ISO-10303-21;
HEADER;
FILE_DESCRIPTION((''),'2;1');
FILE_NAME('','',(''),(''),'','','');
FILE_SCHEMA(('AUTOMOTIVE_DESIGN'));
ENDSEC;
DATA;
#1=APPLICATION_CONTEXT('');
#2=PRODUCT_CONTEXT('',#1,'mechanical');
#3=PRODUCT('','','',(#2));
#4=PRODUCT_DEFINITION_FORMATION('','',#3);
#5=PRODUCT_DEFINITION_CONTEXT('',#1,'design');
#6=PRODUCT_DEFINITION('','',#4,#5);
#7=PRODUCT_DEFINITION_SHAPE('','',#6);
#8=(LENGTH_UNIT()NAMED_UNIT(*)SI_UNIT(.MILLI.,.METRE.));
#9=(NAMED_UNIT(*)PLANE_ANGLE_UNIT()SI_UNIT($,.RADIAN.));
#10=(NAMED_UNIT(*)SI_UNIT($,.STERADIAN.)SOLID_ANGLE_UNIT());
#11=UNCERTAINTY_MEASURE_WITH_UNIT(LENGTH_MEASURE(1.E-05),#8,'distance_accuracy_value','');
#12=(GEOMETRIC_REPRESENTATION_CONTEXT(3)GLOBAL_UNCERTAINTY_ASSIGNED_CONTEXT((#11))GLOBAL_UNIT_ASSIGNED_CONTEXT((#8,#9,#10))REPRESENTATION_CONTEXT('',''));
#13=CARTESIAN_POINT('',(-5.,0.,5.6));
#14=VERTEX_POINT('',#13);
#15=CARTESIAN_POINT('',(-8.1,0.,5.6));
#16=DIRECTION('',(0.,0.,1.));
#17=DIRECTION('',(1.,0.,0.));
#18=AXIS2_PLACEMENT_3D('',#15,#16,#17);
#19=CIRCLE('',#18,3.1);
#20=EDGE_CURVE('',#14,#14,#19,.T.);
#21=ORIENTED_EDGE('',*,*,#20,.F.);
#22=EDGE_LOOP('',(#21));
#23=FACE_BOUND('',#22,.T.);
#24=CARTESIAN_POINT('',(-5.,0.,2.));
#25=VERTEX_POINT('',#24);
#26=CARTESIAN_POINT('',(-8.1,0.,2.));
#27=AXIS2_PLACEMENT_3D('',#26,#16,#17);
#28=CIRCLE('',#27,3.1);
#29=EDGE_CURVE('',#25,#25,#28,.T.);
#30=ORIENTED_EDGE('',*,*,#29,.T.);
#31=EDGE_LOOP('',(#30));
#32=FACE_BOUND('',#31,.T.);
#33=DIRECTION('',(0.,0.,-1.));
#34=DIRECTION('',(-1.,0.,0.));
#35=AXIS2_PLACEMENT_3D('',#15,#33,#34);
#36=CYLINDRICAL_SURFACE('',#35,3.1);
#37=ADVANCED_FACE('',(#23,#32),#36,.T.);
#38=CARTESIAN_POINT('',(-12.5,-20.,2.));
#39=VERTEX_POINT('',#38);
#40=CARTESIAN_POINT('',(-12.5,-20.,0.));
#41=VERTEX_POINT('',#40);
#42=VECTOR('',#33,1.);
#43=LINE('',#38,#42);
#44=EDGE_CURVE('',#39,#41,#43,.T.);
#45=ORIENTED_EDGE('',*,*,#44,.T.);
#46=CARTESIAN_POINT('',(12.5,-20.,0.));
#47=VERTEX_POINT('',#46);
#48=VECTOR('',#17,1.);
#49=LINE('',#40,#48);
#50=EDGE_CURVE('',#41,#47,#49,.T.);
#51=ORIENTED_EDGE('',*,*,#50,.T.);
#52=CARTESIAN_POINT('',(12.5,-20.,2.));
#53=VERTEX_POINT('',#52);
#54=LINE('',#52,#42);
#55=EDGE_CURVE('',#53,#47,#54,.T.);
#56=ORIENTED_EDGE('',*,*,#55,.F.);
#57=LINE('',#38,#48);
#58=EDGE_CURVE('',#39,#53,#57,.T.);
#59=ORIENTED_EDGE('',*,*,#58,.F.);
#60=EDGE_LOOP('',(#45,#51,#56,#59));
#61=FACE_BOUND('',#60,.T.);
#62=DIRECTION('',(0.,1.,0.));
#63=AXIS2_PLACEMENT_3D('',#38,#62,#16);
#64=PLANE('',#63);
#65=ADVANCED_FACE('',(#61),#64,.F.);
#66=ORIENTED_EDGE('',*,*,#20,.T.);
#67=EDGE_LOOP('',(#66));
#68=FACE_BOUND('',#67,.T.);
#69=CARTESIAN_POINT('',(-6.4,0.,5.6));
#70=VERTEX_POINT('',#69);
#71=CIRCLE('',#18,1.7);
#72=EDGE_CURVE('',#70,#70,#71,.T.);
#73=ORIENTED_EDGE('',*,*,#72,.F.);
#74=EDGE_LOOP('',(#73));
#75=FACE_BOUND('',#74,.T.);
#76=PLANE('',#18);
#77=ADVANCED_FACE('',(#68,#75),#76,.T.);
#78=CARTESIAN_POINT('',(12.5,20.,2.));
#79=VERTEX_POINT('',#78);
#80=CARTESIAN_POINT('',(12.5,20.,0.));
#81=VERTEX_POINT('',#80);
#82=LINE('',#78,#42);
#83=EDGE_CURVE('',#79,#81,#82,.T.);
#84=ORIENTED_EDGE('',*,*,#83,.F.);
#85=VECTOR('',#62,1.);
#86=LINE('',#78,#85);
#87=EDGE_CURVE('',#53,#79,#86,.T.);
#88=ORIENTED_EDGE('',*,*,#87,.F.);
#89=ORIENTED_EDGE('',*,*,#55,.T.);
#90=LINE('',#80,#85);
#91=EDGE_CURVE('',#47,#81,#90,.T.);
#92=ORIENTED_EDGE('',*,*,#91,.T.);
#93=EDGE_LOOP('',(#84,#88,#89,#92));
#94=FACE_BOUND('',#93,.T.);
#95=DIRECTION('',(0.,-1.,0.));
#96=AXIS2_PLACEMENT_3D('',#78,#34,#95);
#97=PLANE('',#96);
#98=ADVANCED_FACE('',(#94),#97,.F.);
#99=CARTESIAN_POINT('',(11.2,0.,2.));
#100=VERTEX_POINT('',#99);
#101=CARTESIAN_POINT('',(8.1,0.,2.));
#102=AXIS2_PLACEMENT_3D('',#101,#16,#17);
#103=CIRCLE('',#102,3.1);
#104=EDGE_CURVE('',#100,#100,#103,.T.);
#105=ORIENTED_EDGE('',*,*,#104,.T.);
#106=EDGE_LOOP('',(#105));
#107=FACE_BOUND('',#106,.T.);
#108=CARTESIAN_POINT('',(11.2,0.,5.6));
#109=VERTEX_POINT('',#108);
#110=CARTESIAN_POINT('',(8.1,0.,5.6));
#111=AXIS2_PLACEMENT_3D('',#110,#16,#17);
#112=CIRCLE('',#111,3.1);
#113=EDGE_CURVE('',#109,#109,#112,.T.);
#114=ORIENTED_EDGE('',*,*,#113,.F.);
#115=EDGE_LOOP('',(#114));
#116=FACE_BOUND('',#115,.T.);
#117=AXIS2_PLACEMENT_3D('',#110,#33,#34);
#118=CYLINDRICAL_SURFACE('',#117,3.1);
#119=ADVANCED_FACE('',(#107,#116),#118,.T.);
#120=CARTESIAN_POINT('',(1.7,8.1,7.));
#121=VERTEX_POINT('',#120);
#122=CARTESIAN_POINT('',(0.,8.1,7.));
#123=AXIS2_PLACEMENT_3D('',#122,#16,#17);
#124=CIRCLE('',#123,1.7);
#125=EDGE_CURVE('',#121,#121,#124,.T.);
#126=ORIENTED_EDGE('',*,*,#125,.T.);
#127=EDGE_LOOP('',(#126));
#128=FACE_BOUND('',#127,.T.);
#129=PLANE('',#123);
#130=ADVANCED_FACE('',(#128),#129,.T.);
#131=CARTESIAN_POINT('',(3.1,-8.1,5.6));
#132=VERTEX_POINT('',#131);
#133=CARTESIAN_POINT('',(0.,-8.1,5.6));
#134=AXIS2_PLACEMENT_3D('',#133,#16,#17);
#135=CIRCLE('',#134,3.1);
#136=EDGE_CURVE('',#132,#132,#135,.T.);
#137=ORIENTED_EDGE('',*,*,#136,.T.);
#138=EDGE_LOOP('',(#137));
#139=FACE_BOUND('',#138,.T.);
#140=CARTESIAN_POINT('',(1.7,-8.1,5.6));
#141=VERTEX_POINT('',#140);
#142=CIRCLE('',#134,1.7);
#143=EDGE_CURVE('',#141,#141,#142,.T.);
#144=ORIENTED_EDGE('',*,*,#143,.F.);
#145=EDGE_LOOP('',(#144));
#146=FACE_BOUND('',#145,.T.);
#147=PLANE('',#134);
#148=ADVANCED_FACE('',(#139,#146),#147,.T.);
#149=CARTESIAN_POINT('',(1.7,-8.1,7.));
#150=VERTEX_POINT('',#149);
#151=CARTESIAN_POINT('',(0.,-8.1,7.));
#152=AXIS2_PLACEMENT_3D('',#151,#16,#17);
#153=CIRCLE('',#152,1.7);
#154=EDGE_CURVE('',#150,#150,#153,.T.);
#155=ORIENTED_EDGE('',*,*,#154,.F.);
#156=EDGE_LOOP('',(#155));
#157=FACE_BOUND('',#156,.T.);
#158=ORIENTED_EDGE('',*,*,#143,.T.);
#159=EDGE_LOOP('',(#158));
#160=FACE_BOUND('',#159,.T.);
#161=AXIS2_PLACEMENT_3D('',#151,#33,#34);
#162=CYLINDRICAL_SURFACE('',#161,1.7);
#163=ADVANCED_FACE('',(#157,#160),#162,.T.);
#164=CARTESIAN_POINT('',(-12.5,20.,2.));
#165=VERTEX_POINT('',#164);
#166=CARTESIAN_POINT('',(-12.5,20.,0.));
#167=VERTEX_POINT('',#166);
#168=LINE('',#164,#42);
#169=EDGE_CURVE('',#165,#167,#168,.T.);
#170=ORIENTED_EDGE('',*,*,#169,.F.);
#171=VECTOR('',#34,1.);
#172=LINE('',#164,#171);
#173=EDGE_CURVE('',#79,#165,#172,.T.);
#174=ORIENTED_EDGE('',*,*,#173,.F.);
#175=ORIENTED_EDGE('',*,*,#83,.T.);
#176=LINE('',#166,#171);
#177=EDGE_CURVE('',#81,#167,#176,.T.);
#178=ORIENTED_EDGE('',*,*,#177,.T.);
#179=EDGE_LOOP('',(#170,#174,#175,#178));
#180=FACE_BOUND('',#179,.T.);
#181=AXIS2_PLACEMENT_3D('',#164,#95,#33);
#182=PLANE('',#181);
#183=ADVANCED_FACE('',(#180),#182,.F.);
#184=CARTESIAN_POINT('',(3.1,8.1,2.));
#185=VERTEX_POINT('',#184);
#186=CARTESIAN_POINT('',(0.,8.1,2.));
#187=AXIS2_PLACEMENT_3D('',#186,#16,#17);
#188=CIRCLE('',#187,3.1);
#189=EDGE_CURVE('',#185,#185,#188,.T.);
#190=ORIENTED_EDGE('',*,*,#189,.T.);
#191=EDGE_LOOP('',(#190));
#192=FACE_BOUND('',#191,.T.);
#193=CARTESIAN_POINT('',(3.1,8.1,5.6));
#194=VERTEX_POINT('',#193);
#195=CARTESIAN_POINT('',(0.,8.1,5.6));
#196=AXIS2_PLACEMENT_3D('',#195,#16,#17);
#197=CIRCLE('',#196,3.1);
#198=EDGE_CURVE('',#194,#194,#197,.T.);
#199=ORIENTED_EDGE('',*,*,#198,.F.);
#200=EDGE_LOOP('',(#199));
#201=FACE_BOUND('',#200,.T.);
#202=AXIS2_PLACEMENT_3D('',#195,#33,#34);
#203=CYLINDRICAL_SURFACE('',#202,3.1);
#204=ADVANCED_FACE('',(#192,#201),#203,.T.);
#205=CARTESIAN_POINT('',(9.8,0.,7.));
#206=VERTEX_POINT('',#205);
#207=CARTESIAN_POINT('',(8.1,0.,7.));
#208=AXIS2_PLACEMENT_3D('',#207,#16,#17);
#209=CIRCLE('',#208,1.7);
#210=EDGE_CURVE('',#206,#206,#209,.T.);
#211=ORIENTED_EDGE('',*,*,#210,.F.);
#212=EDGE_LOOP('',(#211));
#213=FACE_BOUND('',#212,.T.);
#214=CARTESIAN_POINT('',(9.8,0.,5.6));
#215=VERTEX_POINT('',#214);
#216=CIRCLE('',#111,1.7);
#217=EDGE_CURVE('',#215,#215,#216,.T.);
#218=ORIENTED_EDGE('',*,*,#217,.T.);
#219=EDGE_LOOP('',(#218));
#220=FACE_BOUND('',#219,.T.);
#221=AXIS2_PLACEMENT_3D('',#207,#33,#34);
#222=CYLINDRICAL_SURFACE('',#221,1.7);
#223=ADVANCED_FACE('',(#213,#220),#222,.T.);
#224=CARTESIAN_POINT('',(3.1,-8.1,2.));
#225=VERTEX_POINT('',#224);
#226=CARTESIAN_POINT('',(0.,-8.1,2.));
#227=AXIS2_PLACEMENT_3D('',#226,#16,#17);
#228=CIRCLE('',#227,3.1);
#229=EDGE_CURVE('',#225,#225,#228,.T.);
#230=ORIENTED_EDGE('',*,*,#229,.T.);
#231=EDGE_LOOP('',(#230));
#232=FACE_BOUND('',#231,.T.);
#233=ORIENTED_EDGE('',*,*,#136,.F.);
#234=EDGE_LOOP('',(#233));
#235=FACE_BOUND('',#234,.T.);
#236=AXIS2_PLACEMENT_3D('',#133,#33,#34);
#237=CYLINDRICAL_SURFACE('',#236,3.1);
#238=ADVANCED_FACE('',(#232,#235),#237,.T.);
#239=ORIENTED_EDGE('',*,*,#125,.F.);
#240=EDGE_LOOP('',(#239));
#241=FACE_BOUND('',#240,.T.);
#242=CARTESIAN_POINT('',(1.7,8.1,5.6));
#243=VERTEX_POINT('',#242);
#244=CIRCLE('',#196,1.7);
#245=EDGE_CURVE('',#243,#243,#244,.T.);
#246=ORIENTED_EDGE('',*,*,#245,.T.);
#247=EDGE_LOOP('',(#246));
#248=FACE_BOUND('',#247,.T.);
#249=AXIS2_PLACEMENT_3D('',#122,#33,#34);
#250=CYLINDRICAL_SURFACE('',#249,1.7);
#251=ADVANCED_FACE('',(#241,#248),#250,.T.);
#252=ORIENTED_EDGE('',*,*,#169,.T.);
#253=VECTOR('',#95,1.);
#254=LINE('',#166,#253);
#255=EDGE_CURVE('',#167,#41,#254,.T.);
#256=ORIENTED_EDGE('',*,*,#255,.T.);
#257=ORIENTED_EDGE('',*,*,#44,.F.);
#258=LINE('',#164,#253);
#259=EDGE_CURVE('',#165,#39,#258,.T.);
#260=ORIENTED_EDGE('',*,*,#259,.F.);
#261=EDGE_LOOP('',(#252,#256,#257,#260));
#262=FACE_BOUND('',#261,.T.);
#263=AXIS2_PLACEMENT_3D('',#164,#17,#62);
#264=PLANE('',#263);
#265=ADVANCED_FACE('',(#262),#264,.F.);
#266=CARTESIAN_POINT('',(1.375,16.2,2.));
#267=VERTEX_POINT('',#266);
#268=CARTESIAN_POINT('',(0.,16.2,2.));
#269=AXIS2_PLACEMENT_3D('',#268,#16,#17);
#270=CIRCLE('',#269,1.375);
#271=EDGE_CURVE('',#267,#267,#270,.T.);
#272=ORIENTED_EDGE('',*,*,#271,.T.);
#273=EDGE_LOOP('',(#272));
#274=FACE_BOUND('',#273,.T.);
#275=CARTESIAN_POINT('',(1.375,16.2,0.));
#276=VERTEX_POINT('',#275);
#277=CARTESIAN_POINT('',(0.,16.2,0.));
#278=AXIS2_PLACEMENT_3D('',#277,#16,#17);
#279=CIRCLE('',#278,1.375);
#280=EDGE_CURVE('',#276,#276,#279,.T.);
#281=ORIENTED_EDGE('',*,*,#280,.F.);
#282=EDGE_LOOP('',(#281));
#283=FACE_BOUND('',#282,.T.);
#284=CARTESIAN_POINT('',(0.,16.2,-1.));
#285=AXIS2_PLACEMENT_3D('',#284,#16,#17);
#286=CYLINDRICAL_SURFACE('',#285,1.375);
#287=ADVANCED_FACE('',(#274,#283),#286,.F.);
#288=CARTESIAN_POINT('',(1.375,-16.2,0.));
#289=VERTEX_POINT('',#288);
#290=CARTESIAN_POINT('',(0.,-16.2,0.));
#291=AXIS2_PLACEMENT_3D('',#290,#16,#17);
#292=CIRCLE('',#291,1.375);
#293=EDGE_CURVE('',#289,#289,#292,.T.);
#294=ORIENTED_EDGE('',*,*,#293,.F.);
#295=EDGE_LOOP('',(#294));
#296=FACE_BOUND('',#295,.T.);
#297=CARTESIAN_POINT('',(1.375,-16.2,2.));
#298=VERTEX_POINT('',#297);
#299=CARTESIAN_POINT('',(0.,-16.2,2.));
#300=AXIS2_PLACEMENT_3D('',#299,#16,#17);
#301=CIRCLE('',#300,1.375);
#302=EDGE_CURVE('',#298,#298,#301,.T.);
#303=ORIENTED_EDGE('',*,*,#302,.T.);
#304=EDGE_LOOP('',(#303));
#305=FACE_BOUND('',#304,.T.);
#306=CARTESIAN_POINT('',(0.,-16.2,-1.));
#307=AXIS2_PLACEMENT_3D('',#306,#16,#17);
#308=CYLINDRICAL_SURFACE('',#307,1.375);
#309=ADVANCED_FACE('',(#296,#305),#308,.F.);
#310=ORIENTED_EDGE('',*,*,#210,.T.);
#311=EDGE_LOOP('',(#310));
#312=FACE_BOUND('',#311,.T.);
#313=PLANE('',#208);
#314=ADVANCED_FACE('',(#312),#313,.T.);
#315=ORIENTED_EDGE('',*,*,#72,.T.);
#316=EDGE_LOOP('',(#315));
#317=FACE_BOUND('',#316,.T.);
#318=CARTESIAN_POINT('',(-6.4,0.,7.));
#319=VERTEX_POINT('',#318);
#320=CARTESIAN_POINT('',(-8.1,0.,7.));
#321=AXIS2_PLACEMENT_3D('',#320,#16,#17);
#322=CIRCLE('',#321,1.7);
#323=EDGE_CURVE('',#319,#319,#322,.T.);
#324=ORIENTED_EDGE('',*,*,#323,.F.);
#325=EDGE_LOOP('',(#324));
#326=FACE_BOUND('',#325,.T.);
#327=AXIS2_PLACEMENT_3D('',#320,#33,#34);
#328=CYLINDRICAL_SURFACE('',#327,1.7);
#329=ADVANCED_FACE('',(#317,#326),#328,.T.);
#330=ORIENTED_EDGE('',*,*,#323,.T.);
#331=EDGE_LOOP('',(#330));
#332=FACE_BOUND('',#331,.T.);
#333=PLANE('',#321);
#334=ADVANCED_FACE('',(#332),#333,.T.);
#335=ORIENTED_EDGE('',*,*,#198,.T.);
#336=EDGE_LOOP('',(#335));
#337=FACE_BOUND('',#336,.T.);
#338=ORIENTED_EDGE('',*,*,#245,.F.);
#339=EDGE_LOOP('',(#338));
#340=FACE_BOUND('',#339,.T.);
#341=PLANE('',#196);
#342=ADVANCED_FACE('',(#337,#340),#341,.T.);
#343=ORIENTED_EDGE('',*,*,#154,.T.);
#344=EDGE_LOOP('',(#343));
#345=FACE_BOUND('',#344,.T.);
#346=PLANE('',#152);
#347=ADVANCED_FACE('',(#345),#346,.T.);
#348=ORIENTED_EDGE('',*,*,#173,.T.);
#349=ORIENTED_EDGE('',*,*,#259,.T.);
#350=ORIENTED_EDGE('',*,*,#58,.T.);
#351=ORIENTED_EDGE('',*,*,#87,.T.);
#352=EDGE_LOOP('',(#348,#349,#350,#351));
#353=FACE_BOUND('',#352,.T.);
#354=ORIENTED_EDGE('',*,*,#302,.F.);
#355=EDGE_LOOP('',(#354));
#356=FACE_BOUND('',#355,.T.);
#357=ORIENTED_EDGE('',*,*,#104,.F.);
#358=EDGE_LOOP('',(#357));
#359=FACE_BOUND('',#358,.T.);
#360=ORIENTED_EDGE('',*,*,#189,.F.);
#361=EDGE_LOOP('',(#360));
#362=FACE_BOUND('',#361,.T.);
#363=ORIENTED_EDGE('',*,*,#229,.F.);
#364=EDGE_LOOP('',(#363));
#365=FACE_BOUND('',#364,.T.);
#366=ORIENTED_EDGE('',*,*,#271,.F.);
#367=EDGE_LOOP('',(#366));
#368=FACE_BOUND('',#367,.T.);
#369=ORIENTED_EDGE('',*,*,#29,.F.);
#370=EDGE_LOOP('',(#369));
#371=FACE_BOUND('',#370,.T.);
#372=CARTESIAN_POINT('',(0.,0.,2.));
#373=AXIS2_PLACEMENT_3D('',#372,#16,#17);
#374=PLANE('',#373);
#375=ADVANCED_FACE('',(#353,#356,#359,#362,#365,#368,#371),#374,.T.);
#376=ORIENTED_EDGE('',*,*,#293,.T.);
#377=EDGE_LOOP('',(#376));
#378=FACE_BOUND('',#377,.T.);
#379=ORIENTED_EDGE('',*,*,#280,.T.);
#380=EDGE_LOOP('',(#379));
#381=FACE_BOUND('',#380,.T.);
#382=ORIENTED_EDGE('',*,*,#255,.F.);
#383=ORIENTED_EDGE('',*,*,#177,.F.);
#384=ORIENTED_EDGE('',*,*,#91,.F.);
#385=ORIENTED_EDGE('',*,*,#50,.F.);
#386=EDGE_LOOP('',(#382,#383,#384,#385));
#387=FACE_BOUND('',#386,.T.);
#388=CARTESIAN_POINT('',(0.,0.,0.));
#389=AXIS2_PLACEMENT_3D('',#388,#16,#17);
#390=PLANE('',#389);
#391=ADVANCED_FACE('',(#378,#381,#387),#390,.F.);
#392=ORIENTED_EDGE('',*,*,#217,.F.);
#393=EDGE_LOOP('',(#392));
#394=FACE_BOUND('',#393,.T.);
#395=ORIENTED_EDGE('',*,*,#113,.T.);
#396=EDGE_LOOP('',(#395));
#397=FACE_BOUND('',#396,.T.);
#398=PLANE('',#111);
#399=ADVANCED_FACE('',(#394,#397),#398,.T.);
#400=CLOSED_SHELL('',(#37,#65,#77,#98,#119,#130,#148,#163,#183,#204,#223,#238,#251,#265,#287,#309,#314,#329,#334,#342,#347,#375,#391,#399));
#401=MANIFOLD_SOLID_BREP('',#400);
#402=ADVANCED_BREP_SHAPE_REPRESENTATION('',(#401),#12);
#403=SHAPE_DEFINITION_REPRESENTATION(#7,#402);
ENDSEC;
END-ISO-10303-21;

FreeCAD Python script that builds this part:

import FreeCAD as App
import Part
import Sketcher
from FreeCAD import Vector


def add_polygon(sketch, points):
    """Adds a closed chain of lines whose ends are joined by coincident constraints."""
    first, n = sketch.GeometryCount, len(points)
    for a, b in zip(points, points[1:] + points[:1]):
        sketch.addGeometry(Part.LineSegment(App.Vector(*a, 0), App.Vector(*b, 0)), False)
    for i in range(n):
        sketch.addConstraint(Sketcher.Constraint("Coincident", first + i, 2, first + (i + 1) % n, 1))

doc = App.newDocument("Part")
body = doc.addObject("PartDesign::Body", "Body")

# Sketch on XY plane
sketch1 = body.newObject("Sketcher::SketchObject", "Sketch")
sketch1.AttachmentSupport = (doc.getObject("XY_Plane"), [""])
sketch1.MapMode = "FlatFace"
add_polygon(sketch1, [(-12, 20), (-12, -20), (12, -20), (12, 20)])  # lines 0-3
sketch1.addConstraint(Sketcher.Constraint("Vertical", 0))
sketch1.addConstraint(Sketcher.Constraint("Horizontal", 1))
sketch1.addConstraint(Sketcher.Constraint("Vertical", 2))
sketch1.addConstraint(Sketcher.Constraint("Horizontal", 3))
sketch1.addConstraint(Sketcher.Constraint("Symmetric", 0, 2, 2, 2, -1, 1))
sketch1.addConstraint(Sketcher.Constraint("DistanceX", 1, 1, 1, 2, 25.0))
sketch1.addConstraint(Sketcher.Constraint("DistanceY", 0, 2, 0, 1, 40.0))
pad1 = body.newObject("PartDesign::Pad", "Pad")
pad1.Profile = sketch1
pad1.Length = 2

# Sketch on XY plane
sketch2 = body.newObject("Sketcher::SketchObject", "Sketch001")
sketch2.AttachmentSupport = (doc.getObject("XY_Plane"), [""])
sketch2.MapMode = "FlatFace"
sketch2.AttachmentOffset = App.Placement(Vector(0, 0, 2), App.Rotation())
sketch2.addGeometry(Part.Circle(Vector(-8.1, 0, 0), Vector(0, 0, 1), 3.1), False)
sketch2.addGeometry(Part.Circle(Vector(8.1, 0, 0), Vector(0, 0, 1), 3.1), False)
sketch2.addGeometry(Part.Circle(Vector(0, 8.1, 0), Vector(0, 0, 1), 3.1), False)
sketch2.addGeometry(Part.Circle(Vector(0, -8.1, 0), Vector(0, 0, 1), 3.1), False)
sketch2.addConstraint(Sketcher.Constraint("Equal", 0, 1))
sketch2.addConstraint(Sketcher.Constraint("Equal", 1, 2))
sketch2.addConstraint(Sketcher.Constraint("Equal", 2, 3))
sketch2.addConstraint(Sketcher.Constraint("Symmetric", 0, 3, 1, 3, -1, 1))
sketch2.addConstraint(Sketcher.Constraint("Symmetric", 2, 3, 3, 3, -1, 1))
sketch2.addConstraint(Sketcher.Constraint("PointOnObject", 0, 3, -1))
sketch2.addConstraint(Sketcher.Constraint("PointOnObject", 2, 3, -2))
sketch2.addConstraint(Sketcher.Constraint("Diameter", 0, 6.2))
sketch2.addConstraint(Sketcher.Constraint("DistanceX", 0, 3, -1, 1, 8.1))
sketch2.addConstraint(Sketcher.Constraint("DistanceY", -1, 1, 2, 3, 8.1))
pad2 = body.newObject("PartDesign::Pad", "Pad001")
pad2.Profile = sketch2
pad2.Length = 3.6

# Sketch on XY plane
sketch3 = body.newObject("Sketcher::SketchObject", "Sketch002")
sketch3.AttachmentSupport = (doc.getObject("XY_Plane"), [""])
sketch3.MapMode = "FlatFace"
sketch3.AttachmentOffset = App.Placement(Vector(0, 0, 5.6), App.Rotation())
sketch3.addGeometry(Part.Circle(Vector(0, 8.1, 0), Vector(0, 0, 1), 1.7), False)
sketch3.addConstraint(Sketcher.Constraint("PointOnObject", 0, 3, -2))
sketch3.addConstraint(Sketcher.Constraint("Diameter", 0, 3.4))
sketch3.addConstraint(Sketcher.Constraint("DistanceY", -1, 1, 0, 3, 8.1))
pad3 = body.newObject("PartDesign::Pad", "Pad002")
pad3.Profile = sketch3
pad3.Length = 1.4

# Sketch on XY plane
sketch4 = body.newObject("Sketcher::SketchObject", "Sketch003")
sketch4.AttachmentSupport = (doc.getObject("XY_Plane"), [""])
sketch4.MapMode = "FlatFace"
sketch4.AttachmentOffset = App.Placement(Vector(0, 0, 5.6), App.Rotation())
sketch4.addGeometry(Part.Circle(Vector(-8.1, 0, 0), Vector(0, 0, 1), 1.7), False)
sketch4.addConstraint(Sketcher.Constraint("PointOnObject", 0, 3, -1))
sketch4.addConstraint(Sketcher.Constraint("Diameter", 0, 3.4))
sketch4.addConstraint(Sketcher.Constraint("DistanceX", 0, 3, -1, 1, 8.1))
pad4 = body.newObject("PartDesign::Pad", "Pad003")
pad4.Profile = sketch4
pad4.Length = 1.4

# Sketch on XY plane
sketch5 = body.newObject("Sketcher::SketchObject", "Sketch004")
sketch5.AttachmentSupport = (doc.getObject("XY_Plane"), [""])
sketch5.MapMode = "FlatFace"
sketch5.AttachmentOffset = App.Placement(Vector(0, 0, 5.6), App.Rotation())
sketch5.addGeometry(Part.Circle(Vector(8.1, 0, 0), Vector(0, 0, 1), 1.7), False)
sketch5.addConstraint(Sketcher.Constraint("PointOnObject", 0, 3, -1))
sketch5.addConstraint(Sketcher.Constraint("Diameter", 0, 3.4))
sketch5.addConstraint(Sketcher.Constraint("DistanceX", -1, 1, 0, 3, 8.1))
pad5 = body.newObject("PartDesign::Pad", "Pad004")
pad5.Profile = sketch5
pad5.Length = 1.4

# Sketch on XY plane
sketch6 = body.newObject("Sketcher::SketchObject", "Sketch005")
sketch6.AttachmentSupport = (doc.getObject("XY_Plane"), [""])
sketch6.MapMode = "FlatFace"
sketch6.AttachmentOffset = App.Placement(Vector(0, 0, 5.6), App.Rotation())
sketch6.addGeometry(Part.Circle(Vector(0, -8.1, 0), Vector(0, 0, 1), 1.7), False)
sketch6.addConstraint(Sketcher.Constraint("PointOnObject", 0, 3, -2))
sketch6.addConstraint(Sketcher.Constraint("Diameter", 0, 3.4))
sketch6.addConstraint(Sketcher.Constraint("DistanceY", 0, 3, -1, 1, 8.1))
pad6 = body.newObject("PartDesign::Pad", "Pad005")
pad6.Profile = sketch6
pad6.Length = 1.4

# Sketch on XY plane
sketch7 = body.newObject("Sketcher::SketchObject", "Sketch006")
sketch7.AttachmentSupport = (doc.getObject("XY_Plane"), [""])
sketch7.MapMode = "FlatFace"
sketch7.AttachmentOffset = App.Placement(Vector(0, 0, 2), App.Rotation())
sketch7.addGeometry(Part.Circle(Vector(0, 16.2, 0), Vector(0, 0, 1), 1.4), False)
sketch7.addGeometry(Part.Circle(Vector(0, -16.2, 0), Vector(0, 0, 1), 1.4), False)
sketch7.addConstraint(Sketcher.Constraint("Equal", 0, 1))
sketch7.addConstraint(Sketcher.Constraint("Symmetric", 0, 3, 1, 3, -1, 1))
sketch7.addConstraint(Sketcher.Constraint("PointOnObject", 0, 3, -2))
sketch7.addConstraint(Sketcher.Constraint("Diameter", 0, 2.75))
sketch7.addConstraint(Sketcher.Constraint("DistanceY", -1, 1, 0, 3, 16.2))
pocket1 = body.newObject("PartDesign::Pocket", "Pocket")
pocket1.Profile = sketch7
pocket1.Length = 3

doc.recompute()
